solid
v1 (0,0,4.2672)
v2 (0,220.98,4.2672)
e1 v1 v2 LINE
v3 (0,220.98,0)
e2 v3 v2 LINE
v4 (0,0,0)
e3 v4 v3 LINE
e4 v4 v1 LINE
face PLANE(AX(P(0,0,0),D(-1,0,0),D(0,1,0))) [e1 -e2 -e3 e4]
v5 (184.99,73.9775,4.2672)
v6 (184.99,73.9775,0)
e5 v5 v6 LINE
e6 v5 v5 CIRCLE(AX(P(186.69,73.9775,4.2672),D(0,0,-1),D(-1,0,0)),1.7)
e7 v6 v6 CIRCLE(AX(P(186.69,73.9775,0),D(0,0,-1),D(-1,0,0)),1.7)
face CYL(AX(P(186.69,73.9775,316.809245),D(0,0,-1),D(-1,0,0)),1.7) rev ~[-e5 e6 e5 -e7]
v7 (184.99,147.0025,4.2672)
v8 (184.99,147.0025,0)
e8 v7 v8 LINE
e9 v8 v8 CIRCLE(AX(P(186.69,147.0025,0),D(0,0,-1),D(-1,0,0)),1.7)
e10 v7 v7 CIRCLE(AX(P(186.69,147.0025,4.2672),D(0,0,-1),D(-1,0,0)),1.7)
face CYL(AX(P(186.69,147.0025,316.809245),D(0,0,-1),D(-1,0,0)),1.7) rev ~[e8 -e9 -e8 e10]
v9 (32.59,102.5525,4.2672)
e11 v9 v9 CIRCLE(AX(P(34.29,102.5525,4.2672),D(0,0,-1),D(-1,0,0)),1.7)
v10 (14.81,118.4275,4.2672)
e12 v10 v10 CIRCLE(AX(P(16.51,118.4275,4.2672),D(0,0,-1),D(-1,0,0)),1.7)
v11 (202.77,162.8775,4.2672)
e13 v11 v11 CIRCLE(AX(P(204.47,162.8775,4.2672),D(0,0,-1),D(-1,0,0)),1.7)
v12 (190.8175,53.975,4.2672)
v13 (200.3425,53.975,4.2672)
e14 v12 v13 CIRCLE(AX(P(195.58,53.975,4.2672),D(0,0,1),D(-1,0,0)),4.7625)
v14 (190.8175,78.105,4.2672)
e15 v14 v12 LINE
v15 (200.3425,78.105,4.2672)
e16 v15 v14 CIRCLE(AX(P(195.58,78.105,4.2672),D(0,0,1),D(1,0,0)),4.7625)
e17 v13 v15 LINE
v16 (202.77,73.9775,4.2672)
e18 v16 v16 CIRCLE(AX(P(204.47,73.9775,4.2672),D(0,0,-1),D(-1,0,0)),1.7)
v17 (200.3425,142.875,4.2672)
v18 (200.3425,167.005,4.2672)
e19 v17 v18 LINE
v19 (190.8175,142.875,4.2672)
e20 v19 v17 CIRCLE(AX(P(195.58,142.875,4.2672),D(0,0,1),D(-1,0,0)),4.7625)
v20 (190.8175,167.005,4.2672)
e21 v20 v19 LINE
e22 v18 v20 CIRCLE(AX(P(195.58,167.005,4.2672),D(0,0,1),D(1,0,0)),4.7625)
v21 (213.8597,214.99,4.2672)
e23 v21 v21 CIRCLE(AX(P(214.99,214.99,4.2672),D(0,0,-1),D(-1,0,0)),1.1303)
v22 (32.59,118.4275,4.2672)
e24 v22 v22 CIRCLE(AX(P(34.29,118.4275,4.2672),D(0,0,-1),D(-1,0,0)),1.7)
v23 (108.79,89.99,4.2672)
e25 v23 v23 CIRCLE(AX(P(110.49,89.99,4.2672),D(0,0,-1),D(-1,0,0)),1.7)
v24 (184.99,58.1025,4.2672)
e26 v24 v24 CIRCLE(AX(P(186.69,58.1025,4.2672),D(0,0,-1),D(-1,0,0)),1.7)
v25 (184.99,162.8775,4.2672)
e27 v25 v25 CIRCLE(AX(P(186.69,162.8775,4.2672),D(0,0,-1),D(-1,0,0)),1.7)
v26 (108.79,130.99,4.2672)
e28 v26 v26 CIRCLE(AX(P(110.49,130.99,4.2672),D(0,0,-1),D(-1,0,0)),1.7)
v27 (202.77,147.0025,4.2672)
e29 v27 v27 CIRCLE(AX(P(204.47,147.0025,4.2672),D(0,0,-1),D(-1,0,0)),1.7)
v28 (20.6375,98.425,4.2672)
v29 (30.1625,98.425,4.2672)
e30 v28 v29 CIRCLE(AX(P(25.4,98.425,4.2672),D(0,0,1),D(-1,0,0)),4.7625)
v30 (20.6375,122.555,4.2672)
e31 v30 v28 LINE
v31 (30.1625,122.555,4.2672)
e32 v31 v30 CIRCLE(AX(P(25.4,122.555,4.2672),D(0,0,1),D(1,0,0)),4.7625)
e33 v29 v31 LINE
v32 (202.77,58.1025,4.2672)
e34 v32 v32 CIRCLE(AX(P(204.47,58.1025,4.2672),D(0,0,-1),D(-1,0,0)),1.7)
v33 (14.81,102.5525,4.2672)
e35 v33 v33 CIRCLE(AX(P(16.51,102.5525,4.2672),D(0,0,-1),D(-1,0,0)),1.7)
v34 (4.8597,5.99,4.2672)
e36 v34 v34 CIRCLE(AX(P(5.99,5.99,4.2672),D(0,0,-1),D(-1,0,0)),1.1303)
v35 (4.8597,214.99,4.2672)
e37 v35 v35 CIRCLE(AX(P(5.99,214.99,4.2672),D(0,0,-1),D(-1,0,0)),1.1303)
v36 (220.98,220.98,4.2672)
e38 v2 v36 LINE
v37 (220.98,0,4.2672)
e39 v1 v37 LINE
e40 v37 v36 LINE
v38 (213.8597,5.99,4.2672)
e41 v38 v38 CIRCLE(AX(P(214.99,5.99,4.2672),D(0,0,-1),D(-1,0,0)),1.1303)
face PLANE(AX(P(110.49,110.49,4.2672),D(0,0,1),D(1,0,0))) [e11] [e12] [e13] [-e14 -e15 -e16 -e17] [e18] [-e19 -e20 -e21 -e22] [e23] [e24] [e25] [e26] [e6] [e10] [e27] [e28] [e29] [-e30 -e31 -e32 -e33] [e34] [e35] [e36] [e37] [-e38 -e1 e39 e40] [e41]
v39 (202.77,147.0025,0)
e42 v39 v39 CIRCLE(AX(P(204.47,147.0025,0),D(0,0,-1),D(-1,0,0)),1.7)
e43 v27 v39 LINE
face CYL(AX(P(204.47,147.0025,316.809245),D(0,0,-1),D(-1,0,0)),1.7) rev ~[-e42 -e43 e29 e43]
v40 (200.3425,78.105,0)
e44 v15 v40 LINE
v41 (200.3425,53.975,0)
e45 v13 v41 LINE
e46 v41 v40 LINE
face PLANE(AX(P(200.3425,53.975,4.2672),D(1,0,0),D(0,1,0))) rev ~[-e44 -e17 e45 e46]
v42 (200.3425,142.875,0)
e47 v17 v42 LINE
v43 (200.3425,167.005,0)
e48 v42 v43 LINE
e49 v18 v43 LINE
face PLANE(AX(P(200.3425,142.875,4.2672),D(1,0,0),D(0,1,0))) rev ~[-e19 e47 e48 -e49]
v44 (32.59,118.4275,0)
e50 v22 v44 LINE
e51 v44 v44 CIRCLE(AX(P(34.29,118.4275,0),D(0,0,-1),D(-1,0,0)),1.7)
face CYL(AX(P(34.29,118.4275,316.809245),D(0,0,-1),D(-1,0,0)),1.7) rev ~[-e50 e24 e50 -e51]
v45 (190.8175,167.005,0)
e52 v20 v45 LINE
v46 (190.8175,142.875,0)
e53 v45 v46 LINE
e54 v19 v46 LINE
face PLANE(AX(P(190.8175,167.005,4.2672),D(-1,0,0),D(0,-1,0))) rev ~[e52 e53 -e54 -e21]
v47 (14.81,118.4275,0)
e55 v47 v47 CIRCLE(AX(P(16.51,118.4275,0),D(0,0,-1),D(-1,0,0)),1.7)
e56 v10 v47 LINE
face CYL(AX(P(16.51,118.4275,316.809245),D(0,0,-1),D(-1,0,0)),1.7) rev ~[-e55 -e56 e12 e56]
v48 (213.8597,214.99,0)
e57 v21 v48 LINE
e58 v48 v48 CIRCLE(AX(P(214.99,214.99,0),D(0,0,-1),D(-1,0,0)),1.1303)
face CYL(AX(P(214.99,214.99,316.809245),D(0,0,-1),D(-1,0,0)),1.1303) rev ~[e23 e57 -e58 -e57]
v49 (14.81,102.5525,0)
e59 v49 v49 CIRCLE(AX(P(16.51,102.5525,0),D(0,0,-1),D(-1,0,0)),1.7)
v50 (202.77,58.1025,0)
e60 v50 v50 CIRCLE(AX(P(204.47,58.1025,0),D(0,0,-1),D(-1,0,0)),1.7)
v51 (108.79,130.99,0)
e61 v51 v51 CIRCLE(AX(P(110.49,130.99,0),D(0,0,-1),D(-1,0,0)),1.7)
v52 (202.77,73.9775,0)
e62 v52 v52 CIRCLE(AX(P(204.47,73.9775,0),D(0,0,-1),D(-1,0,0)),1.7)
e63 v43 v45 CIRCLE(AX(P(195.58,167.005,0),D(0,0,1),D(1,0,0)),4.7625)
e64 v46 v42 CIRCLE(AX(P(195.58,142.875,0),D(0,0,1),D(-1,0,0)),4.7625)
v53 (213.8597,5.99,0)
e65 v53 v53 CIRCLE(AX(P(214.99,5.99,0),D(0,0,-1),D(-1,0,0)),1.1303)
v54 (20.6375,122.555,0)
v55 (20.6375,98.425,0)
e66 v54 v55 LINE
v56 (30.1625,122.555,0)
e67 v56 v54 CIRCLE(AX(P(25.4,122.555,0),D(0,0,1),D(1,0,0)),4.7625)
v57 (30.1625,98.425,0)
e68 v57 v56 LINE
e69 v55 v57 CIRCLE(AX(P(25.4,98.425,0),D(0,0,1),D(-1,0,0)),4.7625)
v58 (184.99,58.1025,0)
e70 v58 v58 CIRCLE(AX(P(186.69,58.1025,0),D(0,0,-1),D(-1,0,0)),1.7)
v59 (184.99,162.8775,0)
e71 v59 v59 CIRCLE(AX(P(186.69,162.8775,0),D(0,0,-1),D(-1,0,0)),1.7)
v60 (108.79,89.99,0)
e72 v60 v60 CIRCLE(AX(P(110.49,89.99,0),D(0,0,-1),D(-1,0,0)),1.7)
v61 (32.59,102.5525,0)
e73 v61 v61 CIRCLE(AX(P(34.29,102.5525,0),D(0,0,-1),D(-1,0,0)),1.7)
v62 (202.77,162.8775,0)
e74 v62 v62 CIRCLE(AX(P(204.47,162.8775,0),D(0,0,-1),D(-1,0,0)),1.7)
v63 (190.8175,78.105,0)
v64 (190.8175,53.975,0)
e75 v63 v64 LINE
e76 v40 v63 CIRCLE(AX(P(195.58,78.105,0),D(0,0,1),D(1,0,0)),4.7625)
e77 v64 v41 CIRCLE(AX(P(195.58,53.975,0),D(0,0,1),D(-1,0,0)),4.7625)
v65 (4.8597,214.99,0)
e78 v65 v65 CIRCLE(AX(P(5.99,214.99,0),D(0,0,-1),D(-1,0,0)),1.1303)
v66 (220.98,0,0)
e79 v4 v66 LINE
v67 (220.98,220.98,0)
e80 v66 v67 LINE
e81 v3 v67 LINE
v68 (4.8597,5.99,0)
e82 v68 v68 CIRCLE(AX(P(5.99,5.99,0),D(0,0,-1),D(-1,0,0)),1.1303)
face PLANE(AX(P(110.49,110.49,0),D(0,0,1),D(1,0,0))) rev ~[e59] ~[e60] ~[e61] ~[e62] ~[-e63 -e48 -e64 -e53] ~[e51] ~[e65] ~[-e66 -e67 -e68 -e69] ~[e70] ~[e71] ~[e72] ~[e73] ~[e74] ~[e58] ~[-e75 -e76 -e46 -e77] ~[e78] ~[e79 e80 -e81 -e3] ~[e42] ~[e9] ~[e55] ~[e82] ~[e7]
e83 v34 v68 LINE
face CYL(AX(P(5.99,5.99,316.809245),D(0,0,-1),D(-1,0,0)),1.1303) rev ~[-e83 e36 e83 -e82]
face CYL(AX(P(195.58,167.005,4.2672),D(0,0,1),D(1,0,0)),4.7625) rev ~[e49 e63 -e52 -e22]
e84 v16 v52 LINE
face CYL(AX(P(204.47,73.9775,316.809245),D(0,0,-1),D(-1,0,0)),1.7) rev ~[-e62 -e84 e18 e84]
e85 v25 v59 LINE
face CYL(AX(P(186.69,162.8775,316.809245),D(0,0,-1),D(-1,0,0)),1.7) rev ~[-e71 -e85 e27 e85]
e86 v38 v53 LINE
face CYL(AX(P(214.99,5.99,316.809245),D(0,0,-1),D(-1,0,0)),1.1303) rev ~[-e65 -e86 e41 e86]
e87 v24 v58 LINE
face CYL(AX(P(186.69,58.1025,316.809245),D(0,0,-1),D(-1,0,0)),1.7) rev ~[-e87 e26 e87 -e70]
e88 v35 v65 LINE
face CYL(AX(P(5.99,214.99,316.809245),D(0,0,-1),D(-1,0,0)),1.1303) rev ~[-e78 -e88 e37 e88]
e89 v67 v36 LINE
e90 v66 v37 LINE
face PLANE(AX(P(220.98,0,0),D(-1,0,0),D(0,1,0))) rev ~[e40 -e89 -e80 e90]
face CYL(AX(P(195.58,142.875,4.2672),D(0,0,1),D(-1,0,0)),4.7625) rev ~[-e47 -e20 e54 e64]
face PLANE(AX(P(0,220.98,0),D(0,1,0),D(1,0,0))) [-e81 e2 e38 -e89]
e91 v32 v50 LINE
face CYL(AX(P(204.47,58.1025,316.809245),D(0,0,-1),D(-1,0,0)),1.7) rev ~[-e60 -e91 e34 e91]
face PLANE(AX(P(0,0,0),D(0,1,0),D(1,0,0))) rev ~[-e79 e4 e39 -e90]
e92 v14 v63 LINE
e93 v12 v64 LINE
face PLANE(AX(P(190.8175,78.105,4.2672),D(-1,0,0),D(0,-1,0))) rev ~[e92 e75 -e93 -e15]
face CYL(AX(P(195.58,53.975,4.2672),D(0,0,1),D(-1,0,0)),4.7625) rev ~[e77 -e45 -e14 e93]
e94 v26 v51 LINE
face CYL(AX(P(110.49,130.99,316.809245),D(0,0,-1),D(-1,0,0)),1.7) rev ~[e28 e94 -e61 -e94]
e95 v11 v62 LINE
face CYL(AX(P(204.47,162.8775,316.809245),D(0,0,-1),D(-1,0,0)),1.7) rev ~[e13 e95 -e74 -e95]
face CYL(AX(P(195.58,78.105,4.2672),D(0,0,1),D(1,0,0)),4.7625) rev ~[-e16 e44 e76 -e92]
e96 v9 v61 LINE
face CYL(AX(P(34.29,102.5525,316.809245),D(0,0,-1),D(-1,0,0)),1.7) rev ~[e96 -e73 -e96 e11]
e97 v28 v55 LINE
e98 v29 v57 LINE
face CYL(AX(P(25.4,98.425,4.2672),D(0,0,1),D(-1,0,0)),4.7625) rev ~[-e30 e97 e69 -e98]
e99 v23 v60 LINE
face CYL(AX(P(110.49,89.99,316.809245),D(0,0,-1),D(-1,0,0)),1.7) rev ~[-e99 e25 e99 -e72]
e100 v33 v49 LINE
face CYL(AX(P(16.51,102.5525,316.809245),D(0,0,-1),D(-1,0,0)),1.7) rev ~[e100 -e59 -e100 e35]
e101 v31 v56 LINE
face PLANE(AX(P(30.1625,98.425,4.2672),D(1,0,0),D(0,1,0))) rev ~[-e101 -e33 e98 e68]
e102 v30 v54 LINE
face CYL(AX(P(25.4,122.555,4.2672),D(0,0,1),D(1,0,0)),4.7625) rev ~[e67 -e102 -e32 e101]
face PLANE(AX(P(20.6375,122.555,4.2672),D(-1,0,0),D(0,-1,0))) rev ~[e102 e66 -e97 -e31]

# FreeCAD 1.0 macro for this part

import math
import FreeCAD as App
import Part
import Sketcher
Q = App.Units.Quantity

doc = App.newDocument("Part")
body = doc.addObject("PartDesign::Body", "Body")

# Sketch on XY plane
sketch1 = body.newObject("Sketcher::SketchObject", "Sketch")
sketch1.AttachmentSupport = (doc.getObject("XY_Plane"), [""])
sketch1.MapMode = "FlatFace"
sketch1.addGeometry(Part.LineSegment(App.Vector(0, 221, 0), App.Vector(0, 0, 0)), False)
sketch1.addGeometry(Part.LineSegment(App.Vector(0, 0, 0), App.Vector(221, 0, 0)), False)
sketch1.addGeometry(Part.LineSegment(App.Vector(221, 0, 0), App.Vector(221, 221, 0)), False)
sketch1.addGeometry(Part.LineSegment(App.Vector(221, 221, 0), App.Vector(0, 221, 0)), False)
sketch1.addConstraint(Sketcher.Constraint("Coincident", 0, 2, 1, 1))
sketch1.addConstraint(Sketcher.Constraint("Coincident", 1, 2, 2, 1))
sketch1.addConstraint(Sketcher.Constraint("Coincident", 2, 2, 3, 1))
sketch1.addConstraint(Sketcher.Constraint("Coincident", 3, 2, 0, 1))
sketch1.addConstraint(Sketcher.Constraint("Vertical", 0))
sketch1.addConstraint(Sketcher.Constraint("Horizontal", 1))
sketch1.addConstraint(Sketcher.Constraint("Vertical", 2))
sketch1.addConstraint(Sketcher.Constraint("Horizontal", 3))
sketch1.addConstraint(Sketcher.Constraint("Coincident", 0, 2, -1, 1))
sketch1.addConstraint(Sketcher.Constraint("Equal", 3, 0))
sketch1.addConstraint(Sketcher.Constraint("DistanceX", 1, 1, 1, 2, Q("8.7 in")))
pad1 = body.newObject("PartDesign::Pad", "Pad")
pad1.Profile = sketch1
pad1.Length = Q("0.168 in")

# Sketch on XY plane
sketch2 = body.newObject("Sketcher::SketchObject", "Sketch001")
sketch2.AttachmentSupport = (doc.getObject("XY_Plane"), [""])
sketch2.MapMode = "FlatFace"
sketch2.AttachmentOffset = App.Placement(App.Vector(0, 0, 0.168 * 25.4), App.Rotation())
sketch2.addGeometry(Part.Circle(App.Vector(6, 215, 0), App.Vector(0, 0, 1), 1.1), False)
sketch2.addGeometry(Part.Circle(App.Vector(215, 215, 0), App.Vector(0, 0, 1), 1.1), False)
sketch2.addGeometry(Part.Circle(App.Vector(215, 6, 0), App.Vector(0, 0, 1), 1.1), False)
sketch2.addGeometry(Part.Circle(App.Vector(6, 6, 0), App.Vector(0, 0, 1), 1.1), False)
sketch2.addConstraint(Sketcher.Constraint("Equal", 0, 1))
sketch2.addConstraint(Sketcher.Constraint("Equal", 1, 2))
sketch2.addConstraint(Sketcher.Constraint("Equal", 2, 3))
sketch2.addConstraint(Sketcher.Constraint("Horizontal", 0, 3, 1, 3))
sketch2.addConstraint(Sketcher.Constraint("Horizontal", 2, 3, 3, 3))
sketch2.addConstraint(Sketcher.Constraint("Vertical", 1, 3, 2, 3))
sketch2.addConstraint(Sketcher.Constraint("Vertical", 0, 3, 3, 3))
sketch2.addConstraint(Sketcher.Constraint("Diameter", 0, Q("0.089 in")))
sketch2.addConstraint(Sketcher.Constraint("DistanceX", -1, 1, 0, 3, 5.99))
sketch2.addConstraint(Sketcher.Constraint("DistanceY", -1, 1, 0, 3, 214.99))
sketch2.addConstraint(Sketcher.Constraint("DistanceX", -1, 1, 1, 3, 214.99))
sketch2.addConstraint(Sketcher.Constraint("DistanceY", -1, 1, 2, 3, 5.99))
doc.recompute()
hole = body.newObject("PartDesign::Hole", "Hole")
hole.Profile = sketch2
hole.ThreadType = "None"
hole.Diameter = Q("0.089 in")
hole.DepthType = "ThroughAll"

# Sketch on XY plane
sketch3 = body.newObject("Sketcher::SketchObject", "Sketch002")
sketch3.AttachmentSupport = (doc.getObject("XY_Plane"), [""])
sketch3.MapMode = "FlatFace"
sketch3.AttachmentOffset = App.Placement(App.Vector(0, 0, 0.168 * 25.4), App.Rotation())
sketch3.addGeometry(Part.ArcOfCircle(Part.Circle(App.Vector(25.4, 122.6, 0), App.Vector(0, 0, 1), 4.8), math.radians(0), math.radians(180)), False)
sketch3.addGeometry(Part.LineSegment(App.Vector(20.6, 122.6, 0), App.Vector(20.6, 98.4, 0)), False)
sketch3.addGeometry(Part.ArcOfCircle(Part.Circle(App.Vector(25.4, 98.4, 0), App.Vector(0, 0, 1), 4.8), math.radians(180), math.radians(360)), False)
sketch3.addGeometry(Part.LineSegment(App.Vector(30.2, 98.4, 0), App.Vector(30.2, 122.6, 0)), False)
sketch3.addGeometry(Part.ArcOfCircle(Part.Circle(App.Vector(195.6, 78.1, 0), App.Vector(0, 0, 1), 4.8), math.radians(0), math.radians(180)), False)
sketch3.addGeometry(Part.LineSegment(App.Vector(190.8, 78.1, 0), App.Vector(190.8, 54, 0)), False)
sketch3.addGeometry(Part.ArcOfCircle(Part.Circle(App.Vector(195.6, 54, 0), App.Vector(0, 0, 1), 4.8), math.radians(180), math.radians(360)), False)
sketch3.addGeometry(Part.LineSegment(App.Vector(200.3, 54, 0), App.Vector(200.3, 78.1, 0)), False)
sketch3.addGeometry(Part.LineSegment(App.Vector(200.3, 142.9, 0), App.Vector(200.3, 167, 0)), False)
sketch3.addGeometry(Part.ArcOfCircle(Part.Circle(App.Vector(195.6, 167, 0), App.Vector(0, 0, 1), 4.8), math.radians(0), math.radians(180)), False)
sketch3.addGeometry(Part.LineSegment(App.Vector(190.8, 167, 0), App.Vector(190.8, 142.9, 0)), False)
sketch3.addGeometry(Part.ArcOfCircle(Part.Circle(App.Vector(195.6, 142.9, 0), App.Vector(0, 0, 1), 4.8), math.radians(180), math.radians(360)), False)
sketch3.addConstraint(Sketcher.Constraint("Tangent", 0, 2, 1, 1))
sketch3.addConstraint(Sketcher.Constraint("Tangent", 1, 2, 2, 1))
sketch3.addConstraint(Sketcher.Constraint("Tangent", 2, 2, 3, 1))
sketch3.addConstraint(Sketcher.Constraint("Tangent", 3, 2, 0, 1))
sketch3.addConstraint(Sketcher.Constraint("Tangent", 4, 2, 5, 1))
sketch3.addConstraint(Sketcher.Constraint("Tangent", 5, 2, 6, 1))
sketch3.addConstraint(Sketcher.Constraint("Tangent", 6, 2, 7, 1))
sketch3.addConstraint(Sketcher.Constraint("Tangent", 7, 2, 4, 1))
sketch3.addConstraint(Sketcher.Constraint("Tangent", 8, 2, 9, 1))
sketch3.addConstraint(Sketcher.Constraint("Tangent", 9, 2, 10, 1))
sketch3.addConstraint(Sketcher.Constraint("Tangent", 10, 2, 11, 1))
sketch3.addConstraint(Sketcher.Constraint("Tangent", 11, 2, 8, 1))
sketch3.addConstraint(Sketcher.Constraint("Vertical", 1))
sketch3.addConstraint(Sketcher.Constraint("Vertical", 3))
sketch3.addConstraint(Sketcher.Constraint("Vertical", 5))
sketch3.addConstraint(Sketcher.Constraint("Vertical", 7))
sketch3.addConstraint(Sketcher.Constraint("Vertical", 8))
sketch3.addConstraint(Sketcher.Constraint("Vertical", 10))
sketch3.addConstraint(Sketcher.Constraint("Equal", 2, 4))
sketch3.addConstraint(Sketcher.Constraint("Equal", 6, 9))
sketch3.addConstraint(Sketcher.Constraint("Vertical", 6, 3, 9, 3))
sketch3.addConstraint(Sketcher.Constraint("Equal", 3, 5))
sketch3.addConstraint(Sketcher.Constraint("Equal", 7, 8))
sketch3.addConstraint(Sketcher.Constraint("DistanceX", -1, 1, 0, 3, Q("1 in")))
sketch3.addConstraint(Sketcher.Constraint("Radius", 0, Q("0.1875 in")))
sketch3.addConstraint(Sketcher.Constraint("DistanceY", 1, 2, 1, 1, Q("0.95 in")))
sketch3.addConstraint(Sketcher.Constraint("DistanceX", -1, 1, 4, 3, Q("7.7 in")))
sketch3.addConstraint(Sketcher.Constraint("DistanceY", 4, 3, 2, 3, Q("0.8 in")))
sketch3.addConstraint(Sketcher.Constraint("DistanceY", 4, 3, 9, 3, Q("3.5 in")))
sketch3.addConstraint(Sketcher.Constraint("DistanceY", -1, 1, 0, 3, Q("4.825 in")))
pocket1 = body.newObject("PartDesign::Pocket", "Pocket")
pocket1.Profile = sketch3
pocket1.Type = "ThroughAll"

# Sketch on XY plane
sketch4 = body.newObject("Sketcher::SketchObject", "Sketch003")
sketch4.AttachmentSupport = (doc.getObject("XY_Plane"), [""])
sketch4.MapMode = "FlatFace"
sketch4.AttachmentOffset = App.Placement(App.Vector(0, 0, 0.168 * 25.4), App.Rotation())
sketch4.addGeometry(Part.Circle(App.Vector(110.5, 131, 0), App.Vector(0, 0, 1), 1.7), False)
sketch4.addGeometry(Part.Circle(App.Vector(110.5, 90, 0), App.Vector(0, 0, 1), 1.7), False)
sketch4.addConstraint(Sketcher.Constraint("Equal", 0, 1))
sketch4.addConstraint(Sketcher.Constraint("Vertical", 0, 3, 1, 3))
sketch4.addConstraint(Sketcher.Constraint("Diameter", 0, 3.4))
sketch4.addConstraint(Sketcher.Constraint("DistanceX", -1, 1, 0, 3, Q("4.35 in")))
sketch4.addConstraint(Sketcher.Constraint("DistanceY", -1, 1, 0, 3, 130.99))
sketch4.addConstraint(Sketcher.Constraint("DistanceY", -1, 1, 1, 3, 89.99))
doc.recompute()
hole2 = body.newObject("PartDesign::Hole", "Hole001")
hole2.Profile = sketch4
hole2.ThreadType = "None"
hole2.Diameter = 3.4
hole2.DepthType = "ThroughAll"

# Sketch on XY plane
sketch5 = body.newObject("Sketcher::SketchObject", "Sketch004")
sketch5.AttachmentSupport = (doc.getObject("XY_Plane"), [""])
sketch5.MapMode = "FlatFace"
sketch5.AttachmentOffset = App.Placement(App.Vector(0, 0, 0.168 * 25.4), App.Rotation())
sketch5.addGeometry(Part.Circle(App.Vector(16.5, 118.4, 0), App.Vector(0, 0, 1), 1.7), False)
sketch5.addGeometry(Part.Circle(App.Vector(16.5, 102.6, 0), App.Vector(0, 0, 1), 1.7), False)
sketch5.addGeometry(Part.Circle(App.Vector(34.3, 118.4, 0), App.Vector(0, 0, 1), 1.7), False)
sketch5.addGeometry(Part.Circle(App.Vector(34.3, 102.6, 0), App.Vector(0, 0, 1), 1.7), False)
sketch5.addGeometry(Part.Circle(App.Vector(204.5, 162.9, 0), App.Vector(0, 0, 1), 1.7), False)
sketch5.addGeometry(Part.Circle(App.Vector(186.7, 147, 0), App.Vector(0, 0, 1), 1.7), False)
sketch5.addGeometry(Part.Circle(App.Vector(186.7, 162.9, 0), App.Vector(0, 0, 1), 1.7), False)
sketch5.addGeometry(Part.Circle(App.Vector(204.5, 147, 0), App.Vector(0, 0, 1), 1.7), False)
sketch5.addGeometry(Part.Circle(App.Vector(204.5, 74, 0), App.Vector(0, 0, 1), 1.7), False)
sketch5.addGeometry(Part.Circle(App.Vector(186.7, 58.1, 0), App.Vector(0, 0, 1), 1.7), False)
sketch5.addGeometry(Part.Circle(App.Vector(204.5, 58.1, 0), App.Vector(0, 0, 1), 1.7), False)
sketch5.addGeometry(Part.Circle(App.Vector(186.7, 74, 0), App.Vector(0, 0, 1), 1.7), False)
sketch5.addConstraint(Sketcher.Constraint("Equal", 0, 1))
sketch5.addConstraint(Sketcher.Constraint("Equal", 1, 2))
sketch5.addConstraint(Sketcher.Constraint("Equal", 2, 3))
sketch5.addConstraint(Sketcher.Constraint("Equal", 3, 4))
sketch5.addConstraint(Sketcher.Constraint("Equal", 4, 5))
sketch5.addConstraint(Sketcher.Constraint("Equal", 5, 6))
sketch5.addConstraint(Sketcher.Constraint("Equal", 6, 7))
sketch5.addConstraint(Sketcher.Constraint("Equal", 7, 8))
sketch5.addConstraint(Sketcher.Constraint("Equal", 8, 9))
sketch5.addConstraint(Sketcher.Constraint("Equal", 9, 10))
sketch5.addConstraint(Sketcher.Constraint("Equal", 10, 11))
sketch5.addConstraint(Sketcher.Constraint("Horizontal", 0, 3, 2, 3))
sketch5.addConstraint(Sketcher.Constraint("Horizontal", 1, 3, 3, 3))
sketch5.addConstraint(Sketcher.Constraint("Horizontal", 4, 3, 6, 3))
sketch5.addConstraint(Sketcher.Constraint("Horizontal", 5, 3, 7, 3))
sketch5.addConstraint(Sketcher.Constraint("Horizontal", 9, 3, 10, 3))
sketch5.addConstraint(Sketcher.Constraint("Horizontal", 8, 3, 11, 3))
sketch5.addConstraint(Sketcher.Constraint("Vertical", 0, 3, 1, 3))
sketch5.addConstraint(Sketcher.Constraint("Vertical", 2, 3, 3, 3))
sketch5.addConstraint(Sketcher.Constraint("Vertical", 5, 3, 6, 3))
sketch5.addConstraint(Sketcher.Constraint("Vertical", 4, 3, 7, 3))
sketch5.addConstraint(Sketcher.Constraint("Vertical", 7, 3, 8, 3))
sketch5.addConstraint(Sketcher.Constraint("Vertical", 6, 3, 9, 3))
sketch5.addConstraint(Sketcher.Constraint("Vertical", 8, 3, 10, 3))
sketch5.addConstraint(Sketcher.Constraint("Vertical", 9, 3, 11, 3))
sketch5.addConstraint(Sketcher.Constraint("DistanceX", 2, 3, 5, 3, Q("6 in")))
sketch5.addConstraint(Sketcher.Constraint("DistanceX", 0, 3, 2, 3, Q("0.7 in")))
sketch5.addConstraint(Sketcher.Constraint("DistanceX", 2, 3, 4, 3, Q("6.7 in")))
sketch5.addConstraint(Sketcher.Constraint("DistanceY", 8, 3, 4, 3, Q("3.5 in")))
sketch5.addConstraint(Sketcher.Constraint("DistanceY", 9, 3, 5, 3, Q("3.5 in")))
sketch5.addConstraint(Sketcher.Constraint("Diameter", 0, 3.4))
sketch5.addConstraint(Sketcher.Constraint("DistanceX", -1, 1, 0, 3, Q("0.65 in")))
sketch5.addConstraint(Sketcher.Constraint("DistanceY", 2, 3, 4, 3, Q("1.75 in")))
sketch5.addConstraint(Sketcher.Constraint("DistanceY", 3, 3, 5, 3, Q("1.75 in")))
sketch5.addConstraint(Sketcher.Constraint("DistanceY", 1, 3, 0, 3, Q("0.625 in")))
sketch5.addConstraint(Sketcher.Constraint("DistanceY", -1, 1, 0, 3, Q("4.6625 in")))
doc.recompute()
hole3 = body.newObject("PartDesign::Hole", "Hole002")
hole3.Profile = sketch5
hole3.ThreadType = "None"
hole3.Diameter = 3.4
hole3.DepthType = "ThroughAll"

doc.recompute()
